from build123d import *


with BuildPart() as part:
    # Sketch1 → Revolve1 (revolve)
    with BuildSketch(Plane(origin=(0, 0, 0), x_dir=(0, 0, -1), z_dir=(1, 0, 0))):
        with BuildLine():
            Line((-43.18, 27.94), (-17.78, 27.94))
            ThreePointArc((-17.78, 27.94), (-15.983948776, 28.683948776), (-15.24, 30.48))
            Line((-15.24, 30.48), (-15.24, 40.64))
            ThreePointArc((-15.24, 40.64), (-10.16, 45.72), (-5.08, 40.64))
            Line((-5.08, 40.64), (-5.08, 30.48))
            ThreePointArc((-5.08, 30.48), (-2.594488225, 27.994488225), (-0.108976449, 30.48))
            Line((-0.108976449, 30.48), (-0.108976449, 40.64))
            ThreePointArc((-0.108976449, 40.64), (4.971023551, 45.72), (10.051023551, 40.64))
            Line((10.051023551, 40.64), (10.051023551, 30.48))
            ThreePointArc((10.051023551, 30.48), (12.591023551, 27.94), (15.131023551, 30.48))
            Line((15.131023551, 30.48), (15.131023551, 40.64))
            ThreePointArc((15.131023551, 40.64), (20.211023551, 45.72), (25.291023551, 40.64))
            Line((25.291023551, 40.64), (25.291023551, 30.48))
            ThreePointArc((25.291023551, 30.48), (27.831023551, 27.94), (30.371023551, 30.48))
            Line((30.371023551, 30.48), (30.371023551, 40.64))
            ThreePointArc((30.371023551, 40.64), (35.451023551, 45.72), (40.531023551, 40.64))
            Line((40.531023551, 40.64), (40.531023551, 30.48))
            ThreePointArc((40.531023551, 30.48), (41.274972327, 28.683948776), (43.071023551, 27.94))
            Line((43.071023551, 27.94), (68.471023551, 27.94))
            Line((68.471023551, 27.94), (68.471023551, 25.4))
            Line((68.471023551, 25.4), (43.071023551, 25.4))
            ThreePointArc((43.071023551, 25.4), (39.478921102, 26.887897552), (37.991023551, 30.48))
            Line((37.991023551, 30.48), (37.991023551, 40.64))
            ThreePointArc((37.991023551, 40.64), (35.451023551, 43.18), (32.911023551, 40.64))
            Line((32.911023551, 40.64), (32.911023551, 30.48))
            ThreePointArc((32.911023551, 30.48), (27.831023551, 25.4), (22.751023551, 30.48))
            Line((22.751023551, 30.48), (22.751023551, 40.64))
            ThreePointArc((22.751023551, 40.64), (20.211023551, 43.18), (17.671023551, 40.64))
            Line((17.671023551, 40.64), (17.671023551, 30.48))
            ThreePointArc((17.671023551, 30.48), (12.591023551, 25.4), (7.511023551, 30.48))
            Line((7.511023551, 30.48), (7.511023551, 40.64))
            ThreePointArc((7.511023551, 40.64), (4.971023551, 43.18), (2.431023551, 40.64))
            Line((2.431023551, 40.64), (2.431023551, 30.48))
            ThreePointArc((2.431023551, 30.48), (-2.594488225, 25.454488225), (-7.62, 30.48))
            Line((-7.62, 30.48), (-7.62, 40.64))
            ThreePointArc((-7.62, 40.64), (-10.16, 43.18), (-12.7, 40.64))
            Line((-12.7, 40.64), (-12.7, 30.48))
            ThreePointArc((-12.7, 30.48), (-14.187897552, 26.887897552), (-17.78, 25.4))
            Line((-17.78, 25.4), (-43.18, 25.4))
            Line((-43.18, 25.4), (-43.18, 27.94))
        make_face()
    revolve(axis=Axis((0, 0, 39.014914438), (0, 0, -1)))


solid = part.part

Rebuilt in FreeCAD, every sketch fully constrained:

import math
import FreeCAD as App
import Part
import Sketcher

V = App.Vector
Q = App.Units.Quantity

doc = App.newDocument("Part")
body = doc.addObject("PartDesign::Body", "Body")

# Sketch on YZ plane
sketch1 = doc.addObject("Sketcher::SketchObject", "Sketch")
body.addObject(sketch1)
sketch1.AttachmentSupport = (doc.YZ_Plane, [""])
sketch1.MapMode = "FlatFace"
sketch1.addGeometry(Part.LineSegment(V(27.9, 17.8, 0), V(27.9, 43.2, 0)), False)
sketch1.addGeometry(Part.LineSegment(V(27.9, 43.2, 0), V(25.4, 43.2, 0)), False)
sketch1.addGeometry(Part.LineSegment(V(25.4, 43.2, 0), V(25.4, 17.8, 0)), False)
sketch1.addGeometry(Part.ArcOfCircle(Part.Circle(V(30.5, 17.8, 0), V(0, 0, 1), 5.1), math.radians(-180), math.radians(-90)), False)
sketch1.addGeometry(Part.LineSegment(V(30.5, 12.7, 0), V(40.6, 12.7, 0)), False)
sketch1.addGeometry(Part.ArcOfCircle(Part.Circle(V(40.6, 10.2, 0), V(0, 0, 1), 2.5), math.radians(-90), math.radians(90)), False)
sketch1.addGeometry(Part.LineSegment(V(40.6, 7.6, 0), V(30.5, 7.6, 0)), False)
sketch1.addGeometry(Part.ArcOfCircle(Part.Circle(V(30.5, 2.6, 0), V(0, 0, 1), 5), math.radians(90), math.radians(270)), False)
sketch1.addGeometry(Part.LineSegment(V(30.5, -2.4, 0), V(40.6, -2.4, 0)), False)
sketch1.addGeometry(Part.ArcOfCircle(Part.Circle(V(40.6, -5, 0), V(0, 0, 1), 2.5), math.radians(-90), math.radians(90)), False)
sketch1.addGeometry(Part.LineSegment(V(40.6, -7.5, 0), V(30.5, -7.5, 0)), False)
sketch1.addGeometry(Part.ArcOfCircle(Part.Circle(V(30.5, -12.6, 0), V(0, 0, 1), 5.1), math.radians(90), math.radians(270)), False)
sketch1.addGeometry(Part.LineSegment(V(30.5, -17.7, 0), V(40.6, -17.7, 0)), False)
sketch1.addGeometry(Part.ArcOfCircle(Part.Circle(V(40.6, -20.2, 0), V(0, 0, 1), 2.5), math.radians(-90), math.radians(90)), False)
sketch1.addGeometry(Part.LineSegment(V(40.6, -22.8, 0), V(30.5, -22.8, 0)), False)
sketch1.addGeometry(Part.ArcOfCircle(Part.Circle(V(30.5, -27.8, 0), V(0, 0, 1), 5.1), math.radians(90), math.radians(270)), False)
sketch1.addGeometry(Part.LineSegment(V(30.5, -32.9, 0), V(40.6, -32.9, 0)), False)
sketch1.addGeometry(Part.ArcOfCircle(Part.Circle(V(40.6, -35.5, 0), V(0, 0, 1), 2.5), math.radians(-90), math.radians(90)), False)
sketch1.addGeometry(Part.LineSegment(V(40.6, -38, 0), V(30.5, -38, 0)), False)
sketch1.addGeometry(Part.ArcOfCircle(Part.Circle(V(30.5, -43.1, 0), V(0, 0, 1), 5.1), math.radians(90), math.radians(180)), False)
sketch1.addGeometry(Part.LineSegment(V(25.4, -43.1, 0), V(25.4, -68.5, 0)), False)
sketch1.addGeometry(Part.LineSegment(V(25.4, -68.5, 0), V(27.9, -68.5, 0)), False)
sketch1.addGeometry(Part.LineSegment(V(27.9, -68.5, 0), V(27.9, -43.1, 0)), False)
sketch1.addGeometry(Part.ArcOfCircle(Part.Circle(V(30.5, -43.1, 0), V(0, 0, 1), 2.5), math.radians(90), math.radians(180)), False)
sketch1.addGeometry(Part.LineSegment(V(30.5, -40.5, 0), V(40.6, -40.5, 0)), False)
sketch1.addGeometry(Part.ArcOfCircle(Part.Circle(V(40.6, -35.5, 0), V(0, 0, 1), 5.1), math.radians(-90), math.radians(90)), False)
sketch1.addGeometry(Part.LineSegment(V(40.6, -30.4, 0), V(30.5, -30.4, 0)), False)
sketch1.addGeometry(Part.ArcOfCircle(Part.Circle(V(30.5, -27.8, 0), V(0, 0, 1), 2.5), math.radians(90), math.radians(270)), False)
sketch1.addGeometry(Part.LineSegment(V(30.5, -25.3, 0), V(40.6, -25.3, 0)), False)
sketch1.addGeometry(Part.ArcOfCircle(Part.Circle(V(40.6, -20.2, 0), V(0, 0, 1), 5.1), math.radians(-90), math.radians(90)), False)
sketch1.addGeometry(Part.LineSegment(V(40.6, -15.1, 0), V(30.5, -15.1, 0)), False)
sketch1.addGeometry(Part.ArcOfCircle(Part.Circle(V(30.5, -12.6, 0), V(0, 0, 1), 2.5), math.radians(90), math.radians(270)), False)
sketch1.addGeometry(Part.LineSegment(V(30.5, -10.1, 0), V(40.6, -10.1, 0)), False)
sketch1.addGeometry(Part.ArcOfCircle(Part.Circle(V(40.6, -5, 0), V(0, 0, 1), 5.1), math.radians(-90), math.radians(90)), False)
sketch1.addGeometry(Part.LineSegment(V(40.6, 0.1, 0), V(30.5, 0.1, 0)), False)
sketch1.addGeometry(Part.ArcOfCircle(Part.Circle(V(30.5, 2.6, 0), V(0, 0, 1), 2.5), math.radians(90), math.radians(270)), False)
sketch1.addGeometry(Part.LineSegment(V(30.5, 5.1, 0), V(40.6, 5.1, 0)), False)
sketch1.addGeometry(Part.ArcOfCircle(Part.Circle(V(40.6, 10.2, 0), V(0, 0, 1), 5.1), math.radians(-90), math.radians(90)), False)
sketch1.addGeometry(Part.LineSegment(V(40.6, 15.2, 0), V(30.5, 15.2, 0)), False)
sketch1.addGeometry(Part.ArcOfCircle(Part.Circle(V(30.5, 17.8, 0), V(0, 0, 1), 2.5), math.radians(-180), math.radians(-90)), False)
sketch1.addConstraint(Sketcher.Constraint("Coincident", 0, 2, 1, 1))
sketch1.addConstraint(Sketcher.Constraint("Coincident", 1, 2, 2, 1))
sketch1.addConstraint(Sketcher.Constraint("Tangent", 2, 2, 3, 1))
sketch1.addConstraint(Sketcher.Constraint("Tangent", 3, 2, 4, 1))
sketch1.addConstraint(Sketcher.Constraint("Tangent", 4, 2, 5, 2))
sketch1.addConstraint(Sketcher.Constraint("Tangent", 5, 1, 6, 1))
sketch1.addConstraint(Sketcher.Constraint("Tangent", 6, 2, 7, 1))
sketch1.addConstraint(Sketcher.Constraint("Tangent", 7, 2, 8, 1))
sketch1.addConstraint(Sketcher.Constraint("Tangent", 8, 2, 9, 2))
sketch1.addConstraint(Sketcher.Constraint("Tangent", 9, 1, 10, 1))
sketch1.addConstraint(Sketcher.Constraint("Tangent", 10, 2, 11, 1))
sketch1.addConstraint(Sketcher.Constraint("Tangent", 11, 2, 12, 1))
sketch1.addConstraint(Sketcher.Constraint("Tangent", 12, 2, 13, 2))
sketch1.addConstraint(Sketcher.Constraint("Tangent", 13, 1, 14, 1))
sketch1.addConstraint(Sketcher.Constraint("Tangent", 14, 2, 15, 1))
sketch1.addConstraint(Sketcher.Constraint("Tangent", 15, 2, 16, 1))
sketch1.addConstraint(Sketcher.Constraint("Tangent", 16, 2, 17, 2))
sketch1.addConstraint(Sketcher.Constraint("Tangent", 17, 1, 18, 1))
sketch1.addConstraint(Sketcher.Constraint("Tangent", 18, 2, 19, 1))
sketch1.addConstraint(Sketcher.Constraint("Tangent", 19, 2, 20, 1))
sketch1.addConstraint(Sketcher.Constraint("Coincident", 20, 2, 21, 1))
sketch1.addConstraint(Sketcher.Constraint("Coincident", 21, 2, 22, 1))
sketch1.addConstraint(Sketcher.Constraint("Tangent", 22, 2, 23, 2))
sketch1.addConstraint(Sketcher.Constraint("Tangent", 23, 1, 24, 1))
sketch1.addConstraint(Sketcher.Constraint("Tangent", 24, 2, 25, 1))
sketch1.addConstraint(Sketcher.Constraint("Tangent", 25, 2, 26, 1))
sketch1.addConstraint(Sketcher.Constraint("Tangent", 26, 2, 27, 2))
sketch1.addConstraint(Sketcher.Constraint("Tangent", 27, 1, 28, 1))
sketch1.addConstraint(Sketcher.Constraint("Tangent", 28, 2, 29, 1))
sketch1.addConstraint(Sketcher.Constraint("Tangent", 29, 2, 30, 1))
sketch1.addConstraint(Sketcher.Constraint("Tangent", 30, 2, 31, 2))
sketch1.addConstraint(Sketcher.Constraint("Tangent", 31, 1, 32, 1))
sketch1.addConstraint(Sketcher.Constraint("Tangent", 32, 2, 33, 1))
sketch1.addConstraint(Sketcher.Constraint("Tangent", 33, 2, 34, 1))
sketch1.addConstraint(Sketcher.Constraint("Tangent", 34, 2, 35, 2))
sketch1.addConstraint(Sketcher.Constraint("Tangent", 35, 1, 36, 1))
sketch1.addConstraint(Sketcher.Constraint("Tangent", 36, 2, 37, 1))
sketch1.addConstraint(Sketcher.Constraint("Tangent", 37, 2, 38, 1))
sketch1.addConstraint(Sketcher.Constraint("Tangent", 38, 2, 39, 2))
sketch1.addConstraint(Sketcher.Constraint("Tangent", 39, 1, 0, 1))
sketch1.addConstraint(Sketcher.Constraint("Vertical", 0))
sketch1.addConstraint(Sketcher.Constraint("Horizontal", 1))
sketch1.addConstraint(Sketcher.Constraint("Vertical", 2))
sketch1.addConstraint(Sketcher.Constraint("Horizontal", 4))
sketch1.addConstraint(Sketcher.Constraint("Horizontal", 6))
sketch1.addConstraint(Sketcher.Constraint("Horizontal", 8))
sketch1.addConstraint(Sketcher.Constraint("Horizontal", 10))
sketch1.addConstraint(Sketcher.Constraint("Horizontal", 12))
sketch1.addConstraint(Sketcher.Constraint("Horizontal", 14))
sketch1.addConstraint(Sketcher.Constraint("Horizontal", 16))
sketch1.addConstraint(Sketcher.Constraint("Horizontal", 18))
sketch1.addConstraint(Sketcher.Constraint("Vertical", 20))
sketch1.addConstraint(Sketcher.Constraint("Horizontal", 21))
sketch1.addConstraint(Sketcher.Constraint("Vertical", 22))
sketch1.addConstraint(Sketcher.Constraint("Horizontal", 24))
sketch1.addConstraint(Sketcher.Constraint("Horizontal", 26))
sketch1.addConstraint(Sketcher.Constraint("Horizontal", 28))
sketch1.addConstraint(Sketcher.Constraint("Horizontal", 30))
sketch1.addConstraint(Sketcher.Constraint("Horizontal", 32))
sketch1.addConstraint(Sketcher.Constraint("Horizontal", 34))
sketch1.addConstraint(Sketcher.Constraint("Horizontal", 36))
sketch1.addConstraint(Sketcher.Constraint("Horizontal", 38))
sketch1.addConstraint(Sketcher.Constraint("Coincident", 23, 3, 19, 3))
sketch1.addConstraint(Sketcher.Constraint("Coincident", 25, 3, 17, 3))
sketch1.addConstraint(Sketcher.Constraint("Coincident", 27, 3, 15, 3))
sketch1.addConstraint(Sketcher.Constraint("Coincident", 29, 3, 13, 3))
sketch1.addConstraint(Sketcher.Constraint("Coincident", 31, 3, 11, 3))
sketch1.addConstraint(Sketcher.Constraint("Coincident", 33, 3, 9, 3))
sketch1.addConstraint(Sketcher.Constraint("Coincident", 35, 3, 7, 3))
sketch1.addConstraint(Sketcher.Constraint("Coincident", 37, 3, 5, 3))
sketch1.addConstraint(Sketcher.Constraint("Coincident", 39, 3, 3, 3))
sketch1.addConstraint(Sketcher.Constraint("Equal", 5, 9))
sketch1.addConstraint(Sketcher.Constraint("Equal", 3, 11))
sketch1.addConstraint(Sketcher.Constraint("Equal", 9, 13))
sketch1.addConstraint(Sketcher.Constraint("Equal", 11, 15))
sketch1.addConstraint(Sketcher.Constraint("Equal", 13, 17))
sketch1.addConstraint(Sketcher.Constraint("Equal", 15, 19))
sketch1.addConstraint(Sketcher.Constraint("Equal", 17, 23))
sketch1.addConstraint(Sketcher.Constraint("Vertical", 3, 3, 7, 3))
sketch1.addConstraint(Sketcher.Constraint("Vertical", 5, 3, 9, 3))
sketch1.addConstraint(Sketcher.Constraint("Vertical", 7, 3, 11, 3))
sketch1.addConstraint(Sketcher.Constraint("Vertical", 9, 3, 13, 3))
sketch1.addConstraint(Sketcher.Constraint("Vertical", 11, 3, 15, 3))
sketch1.addConstraint(Sketcher.Constraint("Vertical", 13, 3, 17, 3))
sketch1.addConstraint(Sketcher.Constraint("Vertical", 15, 3, 19, 3))
sketch1.addConstraint(Sketcher.Constraint("Equal", 2, 20))
sketch1.addConstraint(Sketcher.Constraint("Radius", 3, Q("0.2 in")))
sketch1.addConstraint(Sketcher.Constraint("Radius", 5, Q("0.1 in")))
sketch1.addConstraint(Sketcher.Constraint("DistanceY", 0, 1, 0, 2, Q("1 in")))
sketch1.addConstraint(Sketcher.Constraint("DistanceX", 4, 1, 4, 2, Q("0.4 in")))
sketch1.addConstraint(Sketcher.Constraint("DistanceX", -1, 1, 1, 2, Q("1 in")))
sketch1.addConstraint(Sketcher.Constraint("DistanceY", -1, 1, 3, 3, Q("0.7 in")))
sketch1.addConstraint(Sketcher.Constraint("Radius", 7, Q("5.025512 mm")))
revolution = doc.addObject("PartDesign::Revolution", "Revolution")
body.addObject(revolution)
revolution.Profile = sketch1
revolution.ReferenceAxis = (sketch1, ["V_Axis"])
revolution.Angle = 360

doc.recompute()
